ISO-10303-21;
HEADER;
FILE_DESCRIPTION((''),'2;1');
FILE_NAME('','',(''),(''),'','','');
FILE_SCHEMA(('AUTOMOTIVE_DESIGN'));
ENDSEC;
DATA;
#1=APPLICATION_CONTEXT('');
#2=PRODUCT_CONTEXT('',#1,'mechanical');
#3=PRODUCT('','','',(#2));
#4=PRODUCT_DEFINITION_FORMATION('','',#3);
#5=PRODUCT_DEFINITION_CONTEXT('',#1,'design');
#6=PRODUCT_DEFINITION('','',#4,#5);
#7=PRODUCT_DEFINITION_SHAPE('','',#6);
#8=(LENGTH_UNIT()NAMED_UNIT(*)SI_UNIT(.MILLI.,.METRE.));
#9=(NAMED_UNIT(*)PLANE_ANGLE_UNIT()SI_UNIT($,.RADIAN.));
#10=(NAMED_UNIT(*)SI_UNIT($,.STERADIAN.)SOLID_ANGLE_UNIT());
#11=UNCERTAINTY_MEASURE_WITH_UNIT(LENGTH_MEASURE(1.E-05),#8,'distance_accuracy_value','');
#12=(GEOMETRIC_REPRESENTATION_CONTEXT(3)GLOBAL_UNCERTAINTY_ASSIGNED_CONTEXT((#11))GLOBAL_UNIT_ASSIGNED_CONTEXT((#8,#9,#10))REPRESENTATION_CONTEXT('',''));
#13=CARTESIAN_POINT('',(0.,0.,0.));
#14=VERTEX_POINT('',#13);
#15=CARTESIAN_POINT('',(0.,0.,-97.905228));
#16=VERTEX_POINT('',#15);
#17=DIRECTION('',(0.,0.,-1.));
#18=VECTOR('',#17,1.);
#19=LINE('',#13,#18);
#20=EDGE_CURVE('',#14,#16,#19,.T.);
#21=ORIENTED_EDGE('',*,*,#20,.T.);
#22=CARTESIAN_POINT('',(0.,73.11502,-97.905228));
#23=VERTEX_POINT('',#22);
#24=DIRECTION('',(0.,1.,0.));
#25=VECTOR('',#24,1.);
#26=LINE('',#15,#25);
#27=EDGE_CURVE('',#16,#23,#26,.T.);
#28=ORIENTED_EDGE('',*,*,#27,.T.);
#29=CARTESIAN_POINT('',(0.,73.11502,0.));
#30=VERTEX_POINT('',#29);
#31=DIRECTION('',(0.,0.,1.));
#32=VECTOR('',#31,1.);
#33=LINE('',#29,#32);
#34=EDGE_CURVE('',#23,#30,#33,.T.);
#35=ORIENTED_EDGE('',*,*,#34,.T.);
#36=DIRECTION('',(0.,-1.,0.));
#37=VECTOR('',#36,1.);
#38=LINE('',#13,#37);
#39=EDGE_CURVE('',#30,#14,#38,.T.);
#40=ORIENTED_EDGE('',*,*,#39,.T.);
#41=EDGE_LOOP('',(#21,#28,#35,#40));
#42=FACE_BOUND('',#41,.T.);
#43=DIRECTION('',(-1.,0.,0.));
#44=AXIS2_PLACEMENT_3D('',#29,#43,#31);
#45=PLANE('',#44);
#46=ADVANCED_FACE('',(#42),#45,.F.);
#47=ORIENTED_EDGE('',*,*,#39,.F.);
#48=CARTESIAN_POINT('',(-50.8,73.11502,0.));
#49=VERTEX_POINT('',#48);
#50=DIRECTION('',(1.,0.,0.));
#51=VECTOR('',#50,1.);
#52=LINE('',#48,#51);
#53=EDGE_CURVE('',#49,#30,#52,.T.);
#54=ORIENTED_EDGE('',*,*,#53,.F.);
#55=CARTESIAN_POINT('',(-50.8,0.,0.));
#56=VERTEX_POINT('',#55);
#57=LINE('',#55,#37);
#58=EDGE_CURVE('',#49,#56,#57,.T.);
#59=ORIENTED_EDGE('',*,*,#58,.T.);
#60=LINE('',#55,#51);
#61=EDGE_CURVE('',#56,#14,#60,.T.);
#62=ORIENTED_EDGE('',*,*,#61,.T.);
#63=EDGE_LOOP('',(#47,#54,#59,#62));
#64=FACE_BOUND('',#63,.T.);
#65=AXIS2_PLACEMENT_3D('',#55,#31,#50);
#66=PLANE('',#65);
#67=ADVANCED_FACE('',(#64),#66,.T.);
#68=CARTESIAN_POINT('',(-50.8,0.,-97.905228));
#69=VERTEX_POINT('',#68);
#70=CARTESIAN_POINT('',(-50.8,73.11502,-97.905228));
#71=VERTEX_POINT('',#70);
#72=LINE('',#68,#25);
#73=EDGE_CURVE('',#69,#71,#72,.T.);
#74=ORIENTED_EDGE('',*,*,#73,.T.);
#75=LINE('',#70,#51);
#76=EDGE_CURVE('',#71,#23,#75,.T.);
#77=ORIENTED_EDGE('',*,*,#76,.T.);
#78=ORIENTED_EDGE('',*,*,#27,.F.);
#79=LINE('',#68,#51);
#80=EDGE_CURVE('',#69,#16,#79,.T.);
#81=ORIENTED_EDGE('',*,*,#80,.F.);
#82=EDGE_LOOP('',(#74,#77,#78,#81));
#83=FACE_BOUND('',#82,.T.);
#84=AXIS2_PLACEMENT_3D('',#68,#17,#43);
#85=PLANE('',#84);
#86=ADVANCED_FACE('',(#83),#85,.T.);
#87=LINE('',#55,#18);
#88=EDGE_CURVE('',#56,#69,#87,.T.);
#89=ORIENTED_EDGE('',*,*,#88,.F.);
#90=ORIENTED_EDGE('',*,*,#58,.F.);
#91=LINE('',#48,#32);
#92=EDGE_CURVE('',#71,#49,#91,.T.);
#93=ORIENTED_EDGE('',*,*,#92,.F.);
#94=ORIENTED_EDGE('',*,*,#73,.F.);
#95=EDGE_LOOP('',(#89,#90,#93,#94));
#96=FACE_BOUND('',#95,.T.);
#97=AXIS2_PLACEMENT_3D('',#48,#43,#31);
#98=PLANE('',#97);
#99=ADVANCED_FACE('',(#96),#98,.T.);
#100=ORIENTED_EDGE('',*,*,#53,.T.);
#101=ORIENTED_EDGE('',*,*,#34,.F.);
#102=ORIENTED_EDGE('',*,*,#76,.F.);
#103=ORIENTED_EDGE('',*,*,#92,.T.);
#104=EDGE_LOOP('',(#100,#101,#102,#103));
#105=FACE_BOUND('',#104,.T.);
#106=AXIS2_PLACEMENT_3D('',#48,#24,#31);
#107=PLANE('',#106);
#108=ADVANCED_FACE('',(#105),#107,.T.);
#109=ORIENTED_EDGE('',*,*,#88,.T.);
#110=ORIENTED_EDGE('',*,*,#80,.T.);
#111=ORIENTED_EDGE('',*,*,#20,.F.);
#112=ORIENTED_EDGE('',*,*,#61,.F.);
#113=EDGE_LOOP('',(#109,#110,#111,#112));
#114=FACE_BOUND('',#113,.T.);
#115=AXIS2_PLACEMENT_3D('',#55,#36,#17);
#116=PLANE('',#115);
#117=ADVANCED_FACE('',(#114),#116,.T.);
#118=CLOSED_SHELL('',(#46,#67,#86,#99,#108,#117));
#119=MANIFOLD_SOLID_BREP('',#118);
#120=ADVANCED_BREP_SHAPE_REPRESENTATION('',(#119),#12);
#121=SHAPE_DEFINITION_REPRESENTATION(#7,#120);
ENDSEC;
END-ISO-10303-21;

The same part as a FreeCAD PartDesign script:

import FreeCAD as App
import Part
import Sketcher

V = App.Vector
Q = App.Units.Quantity

doc = App.newDocument("Part")
body = doc.addObject("PartDesign::Body", "Body")

# Sketch on YZ plane
sketch1 = body.newObject("Sketcher::SketchObject", "Sketch")
sketch1.AttachmentSupport = (doc.getObject("YZ_Plane"), [""])
sketch1.MapMode = "FlatFace"
sketch1.addGeometry(Part.LineSegment(V(73, 0, 0), V(0, 0, 0)), False)
sketch1.addGeometry(Part.LineSegment(V(0, 0, 0), V(0, -98, 0)), False)
sketch1.addGeometry(Part.LineSegment(V(0, -98, 0), V(73, -98, 0)), False)
sketch1.addGeometry(Part.LineSegment(V(73, -98, 0), V(73, 0, 0)), False)
sketch1.addConstraint(Sketcher.Constraint("Coincident", 0, 2, 1, 1))
sketch1.addConstraint(Sketcher.Constraint("Coincident", 1, 2, 2, 1))
sketch1.addConstraint(Sketcher.Constraint("Coincident", 2, 2, 3, 1))
sketch1.addConstraint(Sketcher.Constraint("Coincident", 3, 2, 0, 1))
sketch1.addConstraint(Sketcher.Constraint("Horizontal", 0))
sketch1.addConstraint(Sketcher.Constraint("Vertical", 1))
sketch1.addConstraint(Sketcher.Constraint("Horizontal", 2))
sketch1.addConstraint(Sketcher.Constraint("Vertical", 3))
sketch1.addConstraint(Sketcher.Constraint("Coincident", 0, 2, -1, 1))
sketch1.addConstraint(Sketcher.Constraint("DistanceX", 0, 2, 0, 1, Q("73.11502 mm")))
sketch1.addConstraint(Sketcher.Constraint("DistanceY", 1, 2, 1, 1, Q("97.905228 mm")))
pad1 = body.newObject("PartDesign::Pad", "Pad")
pad1.Profile = sketch1
pad1.Length = Q("2 in")
pad1.Reversed = True

doc.recompute()
